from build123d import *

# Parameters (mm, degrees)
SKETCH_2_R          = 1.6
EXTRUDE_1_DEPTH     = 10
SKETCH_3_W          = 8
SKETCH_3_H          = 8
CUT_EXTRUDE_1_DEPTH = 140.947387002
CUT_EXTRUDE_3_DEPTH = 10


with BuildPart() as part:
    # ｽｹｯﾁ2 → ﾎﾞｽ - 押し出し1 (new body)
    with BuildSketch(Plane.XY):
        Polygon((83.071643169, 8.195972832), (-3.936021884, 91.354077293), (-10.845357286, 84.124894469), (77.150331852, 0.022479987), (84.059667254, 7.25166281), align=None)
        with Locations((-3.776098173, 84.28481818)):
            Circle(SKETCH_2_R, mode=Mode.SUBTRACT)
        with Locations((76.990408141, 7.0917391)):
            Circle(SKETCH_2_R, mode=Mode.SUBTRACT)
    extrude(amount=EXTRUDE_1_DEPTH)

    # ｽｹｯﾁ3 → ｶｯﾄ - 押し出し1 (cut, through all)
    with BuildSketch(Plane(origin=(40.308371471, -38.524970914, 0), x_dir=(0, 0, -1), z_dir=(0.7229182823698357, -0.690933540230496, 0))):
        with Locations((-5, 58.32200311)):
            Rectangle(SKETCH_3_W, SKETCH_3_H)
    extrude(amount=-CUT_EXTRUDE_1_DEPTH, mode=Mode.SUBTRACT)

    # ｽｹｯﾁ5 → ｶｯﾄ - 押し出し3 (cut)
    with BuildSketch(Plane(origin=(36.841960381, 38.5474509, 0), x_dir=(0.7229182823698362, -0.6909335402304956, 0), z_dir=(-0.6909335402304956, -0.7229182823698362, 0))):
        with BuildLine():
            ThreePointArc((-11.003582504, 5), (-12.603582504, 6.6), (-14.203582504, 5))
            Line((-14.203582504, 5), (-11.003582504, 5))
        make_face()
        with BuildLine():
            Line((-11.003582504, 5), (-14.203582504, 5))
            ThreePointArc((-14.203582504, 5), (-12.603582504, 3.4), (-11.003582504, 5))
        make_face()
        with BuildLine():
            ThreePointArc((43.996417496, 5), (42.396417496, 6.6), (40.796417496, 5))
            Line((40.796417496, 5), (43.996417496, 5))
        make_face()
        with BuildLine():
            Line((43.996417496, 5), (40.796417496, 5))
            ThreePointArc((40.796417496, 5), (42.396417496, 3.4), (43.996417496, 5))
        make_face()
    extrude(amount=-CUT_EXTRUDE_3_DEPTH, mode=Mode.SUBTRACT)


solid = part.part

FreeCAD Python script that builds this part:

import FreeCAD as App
import Part
import Sketcher

V = App.Vector
Q = App.Units.Quantity

doc = App.newDocument("Part")
body = doc.addObject("PartDesign::Body", "Body")

# Sketch on XY plane
sketch1 = body.newObject("Sketcher::SketchObject", "Sketch")
sketch1.AttachmentSupport = (doc.getObject("XY_Plane"), [""])
sketch1.MapMode = "FlatFace"
sketch1.addGeometry(Part.LineSegment(V(83.1, 8.2, 0), V(-3.9, 91.4, 0)), False)
sketch1.addGeometry(Part.LineSegment(V(-3.9, 91.4, 0), V(-10.8, 84.1, 0)), False)
sketch1.addGeometry(Part.LineSegment(V(-10.8, 84.1, 0), V(77.2, 0, 0)), False)
sketch1.addGeometry(Part.LineSegment(V(77.2, 0, 0), V(84.1, 7.3, 0)), False)
sketch1.addGeometry(Part.LineSegment(V(84.1, 7.3, 0), V(83.1, 8.2, 0)), False)
sketch1.addGeometry(Part.Circle(V(77, 7.1, 0), V(0, 0, 1), 1.6), False)
sketch1.addGeometry(Part.Circle(V(-3.8, 84.3, 0), V(0, 0, 1), 1.6), False)
sketch1.addConstraint(Sketcher.Constraint("Coincident", 0, 2, 1, 1))
sketch1.addConstraint(Sketcher.Constraint("Coincident", 1, 2, 2, 1))
sketch1.addConstraint(Sketcher.Constraint("Coincident", 2, 2, 3, 1))
sketch1.addConstraint(Sketcher.Constraint("Coincident", 3, 2, 4, 1))
sketch1.addConstraint(Sketcher.Constraint("Coincident", 4, 2, 0, 1))
sketch1.addConstraint(Sketcher.Constraint("Equal", 5, 6))
sketch1.addConstraint(Sketcher.Constraint("Perpendicular", 0, 1))
sketch1.addConstraint(Sketcher.Constraint("Perpendicular", 1, 2))
sketch1.addConstraint(Sketcher.Constraint("Perpendicular", 2, 3))
sketch1.addConstraint(Sketcher.Constraint("Perpendicular", 3, 4))
sketch1.addConstraint(Sketcher.Constraint("Diameter", 5, Q("3.2 mm")))
sketch1.addConstraint(Sketcher.Constraint("Distance", 1, Q("10 mm")))
sketch1.addConstraint(Sketcher.Constraint("DistanceX", 6, 3, -1, 1, Q("3.776098 mm")))
sketch1.addConstraint(Sketcher.Constraint("Distance", 2, Q("121.722871 mm")))
sketch1.addConstraint(Sketcher.Constraint("DistanceX", -1, 1, 5, 3, Q("76.990408 mm")))
sketch1.addConstraint(Sketcher.Constraint("DistanceY", -1, 1, 5, 3, Q("7.091739 mm")))
sketch1.addConstraint(Sketcher.Constraint("DistanceY", -1, 1, 6, 3, Q("84.284818 mm")))
sketch1.addConstraint(Sketcher.Constraint("DistanceX", 0, 2, -1, 1, Q("3.936022 mm")))
sketch1.addConstraint(Sketcher.Constraint("DistanceX", -1, 1, 2, 2, Q("77.150332 mm")))
sketch1.addConstraint(Sketcher.Constraint("DistanceY", -1, 1, 2, 2, Q("0.02248 mm")))
sketch1.addConstraint(Sketcher.Constraint("DistanceY", 3, 2, 4, 2, Q("0.94431 mm")))
pad1 = body.newObject("PartDesign::Pad", "Pad")
pad1.Profile = sketch1
pad1.Length = 10

# Sketch on an angled plane
sketch2 = body.newObject("Sketcher::SketchObject", "Sketch001")
sketch2.Placement = App.Placement(V(40.308371, -38.524971, 0), App.Rotation(V(0, 0, -1), V(0.69093354, 0.722918282, 0), V(0.722918282, -0.69093354, 0), "ZXY"))
sketch2.addGeometry(Part.LineSegment(V(-9, 62, 0), V(-9, 54, 0)), False)
sketch2.addGeometry(Part.LineSegment(V(-9, 54, 0), V(-1, 54, 0)), False)
sketch2.addGeometry(Part.LineSegment(V(-1, 54, 0), V(-1, 62, 0)), False)
sketch2.addGeometry(Part.LineSegment(V(-1, 62, 0), V(-9, 62, 0)), False)
sketch2.addConstraint(Sketcher.Constraint("Coincident", 0, 2, 1, 1))
sketch2.addConstraint(Sketcher.Constraint("Coincident", 1, 2, 2, 1))
sketch2.addConstraint(Sketcher.Constraint("Coincident", 2, 2, 3, 1))
sketch2.addConstraint(Sketcher.Constraint("Coincident", 3, 2, 0, 1))
sketch2.addConstraint(Sketcher.Constraint("Vertical", 0))
sketch2.addConstraint(Sketcher.Constraint("Horizontal", 1))
sketch2.addConstraint(Sketcher.Constraint("Vertical", 2))
sketch2.addConstraint(Sketcher.Constraint("Horizontal", 3))
sketch2.addConstraint(Sketcher.Constraint("Equal", 3, 0))
sketch2.addConstraint(Sketcher.Constraint("DistanceX", 1, 1, 1, 2, Q("8 mm")))
sketch2.addConstraint(Sketcher.Constraint("DistanceX", 0, 2, -1, 1, Q("9 mm")))
sketch2.addConstraint(Sketcher.Constraint("DistanceY", -1, 1, 0, 2, Q("54.322003 mm")))
pocket1 = body.newObject("PartDesign::Pocket", "Pocket")
pocket1.Profile = sketch2
pocket1.Type = "ThroughAll"

# Sketch on an angled plane
sketch3 = body.newObject("Sketcher::SketchObject", "Sketch002")
sketch3.Placement = App.Placement(V(36.84196, 38.547451, 0), App.Rotation(V(0.722918282, -0.69093354, 0), V(0, 0, 0.999999999), V(-0.69093354, -0.722918282, 0), "ZXY"))
sketch3.addGeometry(Part.Circle(V(-12.6, 5, 0), V(0, 0, 1), 1.6), False)
sketch3.addGeometry(Part.Circle(V(42.4, 5, 0), V(0, 0, 1), 1.6), False)
sketch3.addConstraint(Sketcher.Constraint("Equal", 0, 1))
sketch3.addConstraint(Sketcher.Constraint("Horizontal", 0, 3, 1, 3))
sketch3.addConstraint(Sketcher.Constraint("Diameter", 0, Q("3.2 mm")))
sketch3.addConstraint(Sketcher.Constraint("DistanceY", -1, 1, 0, 3, Q("5 mm")))
sketch3.addConstraint(Sketcher.Constraint("DistanceX", 0, 3, 1, 3, Q("55 mm")))
sketch3.addConstraint(Sketcher.Constraint("DistanceX", 0, 3, -1, 1, Q("12.603582 mm")))
pocket2 = body.newObject("PartDesign::Pocket", "Pocket001")
pocket2.Profile = sketch3
pocket2.Length = 10

doc.recompute()
